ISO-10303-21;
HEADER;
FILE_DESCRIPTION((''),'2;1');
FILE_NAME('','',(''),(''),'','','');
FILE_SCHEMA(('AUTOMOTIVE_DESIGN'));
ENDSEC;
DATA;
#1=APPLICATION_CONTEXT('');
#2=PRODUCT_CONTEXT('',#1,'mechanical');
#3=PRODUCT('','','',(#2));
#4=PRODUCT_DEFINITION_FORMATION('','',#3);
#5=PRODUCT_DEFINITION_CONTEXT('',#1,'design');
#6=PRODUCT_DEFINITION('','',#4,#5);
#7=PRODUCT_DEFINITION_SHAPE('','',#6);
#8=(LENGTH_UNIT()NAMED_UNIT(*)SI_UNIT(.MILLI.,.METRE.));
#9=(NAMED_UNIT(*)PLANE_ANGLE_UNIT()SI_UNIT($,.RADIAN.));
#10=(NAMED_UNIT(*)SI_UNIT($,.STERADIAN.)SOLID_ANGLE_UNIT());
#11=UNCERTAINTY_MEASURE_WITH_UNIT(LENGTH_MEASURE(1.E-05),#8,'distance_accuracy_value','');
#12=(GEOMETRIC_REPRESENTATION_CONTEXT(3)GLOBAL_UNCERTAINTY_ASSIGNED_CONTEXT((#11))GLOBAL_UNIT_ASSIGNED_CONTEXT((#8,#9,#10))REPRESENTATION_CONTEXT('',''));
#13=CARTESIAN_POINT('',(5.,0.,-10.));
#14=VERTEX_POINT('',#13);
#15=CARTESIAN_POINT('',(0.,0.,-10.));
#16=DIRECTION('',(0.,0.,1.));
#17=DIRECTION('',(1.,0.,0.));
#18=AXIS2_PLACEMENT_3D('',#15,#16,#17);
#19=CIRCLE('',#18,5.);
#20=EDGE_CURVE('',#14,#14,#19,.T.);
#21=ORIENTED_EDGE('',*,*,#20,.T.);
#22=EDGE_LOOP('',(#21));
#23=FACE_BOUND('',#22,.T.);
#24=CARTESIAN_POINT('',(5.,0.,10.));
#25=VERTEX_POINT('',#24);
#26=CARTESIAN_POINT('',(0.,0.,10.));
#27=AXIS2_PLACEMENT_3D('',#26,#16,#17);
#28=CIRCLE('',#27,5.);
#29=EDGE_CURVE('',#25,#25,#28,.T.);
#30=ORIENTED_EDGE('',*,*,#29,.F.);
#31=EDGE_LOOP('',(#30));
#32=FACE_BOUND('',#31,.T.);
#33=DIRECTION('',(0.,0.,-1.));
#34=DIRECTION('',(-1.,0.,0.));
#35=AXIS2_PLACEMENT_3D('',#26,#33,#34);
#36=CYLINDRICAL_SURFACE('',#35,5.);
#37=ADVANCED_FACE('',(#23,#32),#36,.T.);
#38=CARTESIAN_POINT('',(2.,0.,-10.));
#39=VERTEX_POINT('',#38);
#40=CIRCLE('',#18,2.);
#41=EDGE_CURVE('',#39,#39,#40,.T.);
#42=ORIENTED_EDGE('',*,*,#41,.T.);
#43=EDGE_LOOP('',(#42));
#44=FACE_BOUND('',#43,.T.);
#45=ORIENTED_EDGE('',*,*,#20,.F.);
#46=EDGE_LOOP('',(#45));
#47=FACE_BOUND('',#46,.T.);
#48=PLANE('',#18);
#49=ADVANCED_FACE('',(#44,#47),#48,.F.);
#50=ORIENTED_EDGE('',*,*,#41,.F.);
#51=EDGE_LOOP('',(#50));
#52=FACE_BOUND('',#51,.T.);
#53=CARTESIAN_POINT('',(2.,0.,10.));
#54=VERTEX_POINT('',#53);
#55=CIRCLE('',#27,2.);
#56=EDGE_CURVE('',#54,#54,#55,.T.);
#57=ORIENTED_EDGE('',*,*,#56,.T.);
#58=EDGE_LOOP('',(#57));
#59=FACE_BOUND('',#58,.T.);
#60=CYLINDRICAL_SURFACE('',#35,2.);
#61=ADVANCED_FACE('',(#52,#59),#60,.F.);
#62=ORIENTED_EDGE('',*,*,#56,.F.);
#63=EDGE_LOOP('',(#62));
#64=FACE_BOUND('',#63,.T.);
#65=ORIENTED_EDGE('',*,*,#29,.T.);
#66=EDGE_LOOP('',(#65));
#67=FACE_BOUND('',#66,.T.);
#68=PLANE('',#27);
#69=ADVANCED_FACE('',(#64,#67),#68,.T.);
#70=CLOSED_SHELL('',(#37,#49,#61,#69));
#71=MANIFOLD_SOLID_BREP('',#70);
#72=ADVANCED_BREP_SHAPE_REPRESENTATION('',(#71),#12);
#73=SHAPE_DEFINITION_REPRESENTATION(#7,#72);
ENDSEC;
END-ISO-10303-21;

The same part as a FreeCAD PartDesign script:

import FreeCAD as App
import Part
import Sketcher
Q = App.Units.Quantity

doc = App.newDocument("Part")
body = doc.addObject("PartDesign::Body", "Body")

# Sketch on XY plane
sketch1 = body.newObject("Sketcher::SketchObject", "Sketch")
sketch1.AttachmentSupport = (doc.getObject("XY_Plane"), [""])
sketch1.MapMode = "FlatFace"
sketch1.addGeometry([
    Part.Circle(App.Vector(0, 0, 0), App.Vector(0, 0, 1), 5),
    Part.Circle(App.Vector(0, 0, 0), App.Vector(0, 0, 1), 2),
], False)
sketch1.addConstraint([
    Sketcher.Constraint("Coincident", 0, 3, -1, 1),
    Sketcher.Constraint("Coincident", 1, 3, -1, 1),
    Sketcher.Constraint("Diameter", 0, Q("10 mm")),
    Sketcher.Constraint("Diameter", 1, Q("4 mm")),
])
pad1 = body.newObject("PartDesign::Pad", "Pad")
pad1.Profile = sketch1
pad1.Length = 20
pad1.Midplane = True

doc.recompute()
